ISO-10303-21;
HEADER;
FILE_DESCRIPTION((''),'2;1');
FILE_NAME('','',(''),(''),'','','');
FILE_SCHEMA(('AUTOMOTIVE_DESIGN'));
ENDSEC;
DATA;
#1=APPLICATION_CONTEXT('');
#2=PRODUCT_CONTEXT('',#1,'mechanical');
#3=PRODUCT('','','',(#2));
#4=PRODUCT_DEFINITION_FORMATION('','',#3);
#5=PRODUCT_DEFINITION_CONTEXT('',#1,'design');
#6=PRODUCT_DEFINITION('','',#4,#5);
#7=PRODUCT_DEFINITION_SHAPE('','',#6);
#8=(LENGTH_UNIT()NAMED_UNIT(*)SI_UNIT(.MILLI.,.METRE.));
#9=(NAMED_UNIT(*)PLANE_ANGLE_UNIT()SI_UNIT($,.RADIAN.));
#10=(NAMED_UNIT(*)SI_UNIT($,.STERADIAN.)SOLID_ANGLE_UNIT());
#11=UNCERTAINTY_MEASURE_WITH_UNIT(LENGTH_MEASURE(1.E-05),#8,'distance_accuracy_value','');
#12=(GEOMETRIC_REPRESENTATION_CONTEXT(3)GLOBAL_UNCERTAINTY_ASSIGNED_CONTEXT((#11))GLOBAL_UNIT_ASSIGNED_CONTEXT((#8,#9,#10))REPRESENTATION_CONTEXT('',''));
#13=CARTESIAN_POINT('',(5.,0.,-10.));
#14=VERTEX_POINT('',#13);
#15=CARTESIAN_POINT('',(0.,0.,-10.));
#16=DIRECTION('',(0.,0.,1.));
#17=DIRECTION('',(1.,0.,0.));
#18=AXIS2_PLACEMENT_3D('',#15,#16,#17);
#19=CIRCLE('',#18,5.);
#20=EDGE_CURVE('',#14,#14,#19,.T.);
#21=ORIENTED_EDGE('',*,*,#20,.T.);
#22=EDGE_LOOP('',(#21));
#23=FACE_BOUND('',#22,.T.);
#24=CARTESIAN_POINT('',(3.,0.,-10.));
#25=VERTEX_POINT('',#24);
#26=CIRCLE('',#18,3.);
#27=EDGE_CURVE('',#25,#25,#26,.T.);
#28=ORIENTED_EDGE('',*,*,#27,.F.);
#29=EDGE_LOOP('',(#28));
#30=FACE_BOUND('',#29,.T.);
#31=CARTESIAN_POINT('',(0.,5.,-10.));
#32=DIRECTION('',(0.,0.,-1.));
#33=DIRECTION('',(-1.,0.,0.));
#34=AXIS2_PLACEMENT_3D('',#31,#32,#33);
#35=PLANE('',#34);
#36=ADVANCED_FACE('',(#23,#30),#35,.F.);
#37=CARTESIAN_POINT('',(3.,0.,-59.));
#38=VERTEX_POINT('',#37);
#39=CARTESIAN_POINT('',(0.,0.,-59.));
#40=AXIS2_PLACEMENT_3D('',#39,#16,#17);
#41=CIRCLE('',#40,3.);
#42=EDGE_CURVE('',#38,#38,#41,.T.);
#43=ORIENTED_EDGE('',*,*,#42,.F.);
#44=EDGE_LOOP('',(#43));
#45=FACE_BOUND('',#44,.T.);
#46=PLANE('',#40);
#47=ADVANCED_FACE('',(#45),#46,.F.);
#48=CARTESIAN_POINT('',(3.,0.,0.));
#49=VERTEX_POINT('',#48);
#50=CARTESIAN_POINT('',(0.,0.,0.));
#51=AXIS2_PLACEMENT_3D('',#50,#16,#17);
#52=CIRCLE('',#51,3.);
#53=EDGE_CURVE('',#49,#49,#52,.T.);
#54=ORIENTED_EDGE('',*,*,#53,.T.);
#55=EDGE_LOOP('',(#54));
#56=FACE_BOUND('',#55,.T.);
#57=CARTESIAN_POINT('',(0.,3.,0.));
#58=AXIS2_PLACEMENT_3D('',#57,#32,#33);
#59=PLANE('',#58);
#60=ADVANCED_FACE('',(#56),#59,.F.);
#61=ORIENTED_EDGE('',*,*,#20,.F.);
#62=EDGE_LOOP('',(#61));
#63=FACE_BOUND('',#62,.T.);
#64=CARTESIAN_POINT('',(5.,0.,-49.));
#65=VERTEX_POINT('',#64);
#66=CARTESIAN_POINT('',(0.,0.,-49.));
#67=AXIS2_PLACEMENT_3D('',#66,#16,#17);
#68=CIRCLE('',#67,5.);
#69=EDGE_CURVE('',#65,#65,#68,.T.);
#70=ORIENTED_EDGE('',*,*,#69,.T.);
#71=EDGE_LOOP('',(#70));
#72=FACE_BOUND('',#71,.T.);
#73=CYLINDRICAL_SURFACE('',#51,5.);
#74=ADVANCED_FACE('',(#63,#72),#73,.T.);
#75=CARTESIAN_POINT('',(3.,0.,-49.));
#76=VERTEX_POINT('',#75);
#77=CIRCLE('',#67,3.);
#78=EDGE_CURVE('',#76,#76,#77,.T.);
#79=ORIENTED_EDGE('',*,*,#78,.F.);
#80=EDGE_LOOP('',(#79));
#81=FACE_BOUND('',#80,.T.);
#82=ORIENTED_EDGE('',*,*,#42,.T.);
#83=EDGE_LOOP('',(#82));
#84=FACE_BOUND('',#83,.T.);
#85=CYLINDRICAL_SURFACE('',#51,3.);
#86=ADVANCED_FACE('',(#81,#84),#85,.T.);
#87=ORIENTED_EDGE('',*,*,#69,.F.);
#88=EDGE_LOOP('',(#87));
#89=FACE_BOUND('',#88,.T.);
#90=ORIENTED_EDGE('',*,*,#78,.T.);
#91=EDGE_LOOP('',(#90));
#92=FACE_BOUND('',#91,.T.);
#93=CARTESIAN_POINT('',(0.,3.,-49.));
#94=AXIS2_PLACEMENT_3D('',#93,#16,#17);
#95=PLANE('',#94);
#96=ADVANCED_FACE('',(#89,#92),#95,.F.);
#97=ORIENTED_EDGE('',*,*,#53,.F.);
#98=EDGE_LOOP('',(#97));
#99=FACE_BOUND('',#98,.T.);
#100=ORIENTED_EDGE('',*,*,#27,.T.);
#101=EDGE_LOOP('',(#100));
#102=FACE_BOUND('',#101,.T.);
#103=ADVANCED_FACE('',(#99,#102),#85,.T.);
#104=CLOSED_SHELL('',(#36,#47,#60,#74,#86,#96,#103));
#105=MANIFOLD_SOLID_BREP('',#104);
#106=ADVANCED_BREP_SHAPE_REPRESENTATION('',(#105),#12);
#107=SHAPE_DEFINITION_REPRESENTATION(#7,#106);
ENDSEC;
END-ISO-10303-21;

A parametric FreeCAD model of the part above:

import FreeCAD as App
import Part
import Sketcher


def add_polygon(sketch, points):
    """Adds a closed chain of lines whose ends are joined by coincident constraints."""
    first, n = sketch.GeometryCount, len(points)
    for a, b in zip(points, points[1:] + points[:1]):
        sketch.addGeometry(Part.LineSegment(App.Vector(*a, 0), App.Vector(*b, 0)), False)
    for i in range(n):
        sketch.addConstraint(Sketcher.Constraint("Coincident", first + i, 2, first + (i + 1) % n, 1))

doc = App.newDocument("Part")
body = doc.addObject("PartDesign::Body", "Body")

# Sketch on YZ plane
sketch1 = body.newObject("Sketcher::SketchObject", "Sketch")
sketch1.AttachmentSupport = (doc.getObject("YZ_Plane"), [""])
sketch1.MapMode = "FlatFace"
add_polygon(sketch1, [(0, 0), (0, -59), (3, -59), (3, -49), (5, -49), (5, -10), (3, -10), (3, 0)])  # lines 0-7
sketch1.addConstraint([
    Sketcher.Constraint("Vertical", 0),
    Sketcher.Constraint("Horizontal", 1),
    Sketcher.Constraint("Vertical", 2),
    Sketcher.Constraint("Horizontal", 3),
    Sketcher.Constraint("Vertical", 4),
    Sketcher.Constraint("Horizontal", 5),
    Sketcher.Constraint("Vertical", 6),
    Sketcher.Constraint("Horizontal", 7),
    Sketcher.Constraint("Coincident", 7, 2, -1, 1),
    Sketcher.Constraint("Vertical", 2, 2, 5, 2),
    Sketcher.Constraint("Equal", 2, 6),
    Sketcher.Constraint("DistanceX", 1, 1, 1, 2, 3.0),
    Sketcher.Constraint("DistanceX", 3, 1, 3, 2, 2.0),
    Sketcher.Constraint("DistanceY", 0, 2, 0, 1, 59.0),
    Sketcher.Constraint("DistanceY", 2, 1, 2, 2, 10.0),
])
revolution = body.newObject("PartDesign::Revolution", "Revolution")
revolution.Profile = sketch1
revolution.ReferenceAxis = (sketch1, ["V_Axis"])
revolution.Angle = 360

doc.recompute()
